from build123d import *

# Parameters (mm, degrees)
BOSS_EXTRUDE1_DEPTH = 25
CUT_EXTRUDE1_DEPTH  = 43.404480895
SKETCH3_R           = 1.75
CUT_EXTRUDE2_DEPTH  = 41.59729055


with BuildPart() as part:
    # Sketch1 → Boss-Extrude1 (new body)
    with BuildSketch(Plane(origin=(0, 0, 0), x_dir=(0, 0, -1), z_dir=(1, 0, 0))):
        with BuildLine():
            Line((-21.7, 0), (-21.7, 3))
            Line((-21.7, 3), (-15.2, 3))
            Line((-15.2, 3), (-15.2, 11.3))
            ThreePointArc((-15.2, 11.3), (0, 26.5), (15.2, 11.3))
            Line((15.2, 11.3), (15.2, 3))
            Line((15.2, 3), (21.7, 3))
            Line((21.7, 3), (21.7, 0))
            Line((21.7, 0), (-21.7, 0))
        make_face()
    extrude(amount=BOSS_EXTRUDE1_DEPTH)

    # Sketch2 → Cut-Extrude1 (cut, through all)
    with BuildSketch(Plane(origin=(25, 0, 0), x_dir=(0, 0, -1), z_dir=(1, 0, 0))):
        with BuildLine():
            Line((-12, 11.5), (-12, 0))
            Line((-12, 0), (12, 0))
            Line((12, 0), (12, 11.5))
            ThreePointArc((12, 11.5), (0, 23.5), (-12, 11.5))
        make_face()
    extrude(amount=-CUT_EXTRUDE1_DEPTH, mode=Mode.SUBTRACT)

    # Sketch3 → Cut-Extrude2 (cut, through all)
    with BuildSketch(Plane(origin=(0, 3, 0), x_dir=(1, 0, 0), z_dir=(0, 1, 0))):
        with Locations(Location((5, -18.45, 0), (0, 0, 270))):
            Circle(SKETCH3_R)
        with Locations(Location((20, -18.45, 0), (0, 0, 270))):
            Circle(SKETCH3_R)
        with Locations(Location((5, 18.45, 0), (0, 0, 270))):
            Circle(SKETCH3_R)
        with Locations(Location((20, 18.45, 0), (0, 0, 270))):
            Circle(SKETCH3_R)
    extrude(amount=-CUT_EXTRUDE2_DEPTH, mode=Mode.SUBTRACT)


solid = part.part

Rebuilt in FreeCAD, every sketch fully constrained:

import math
import FreeCAD as App
import Part
import Sketcher

doc = App.newDocument("Part")
body = doc.addObject("PartDesign::Body", "Body")

# Sketch on YZ plane
sketch1 = doc.addObject("Sketcher::SketchObject", "Sketch")
body.addObject(sketch1)
sketch1.AttachmentSupport = (doc.YZ_Plane, [""])
sketch1.MapMode = "FlatFace"
sketch1.addGeometry([
    Part.LineSegment(App.Vector(3, 21.7, 0), App.Vector(0, 21.7, 0)),  # 0
    Part.LineSegment(App.Vector(0, 21.7, 0), App.Vector(0, -21.7, 0)),  # 1
    Part.LineSegment(App.Vector(0, -21.7, 0), App.Vector(3, -21.7, 0)),  # 2
    Part.LineSegment(App.Vector(3, -21.7, 0), App.Vector(3, -15.2, 0)),  # 3
    Part.LineSegment(App.Vector(3, -15.2, 0), App.Vector(11.3, -15.2, 0)),  # 4
    Part.ArcOfCircle(Part.Circle(App.Vector(11.3, 0, 0), App.Vector(0, 0, 1), 15.2), math.radians(-90), math.radians(90)),  # 5
    Part.LineSegment(App.Vector(11.3, 15.2, 0), App.Vector(3, 15.2, 0)),  # 6
    Part.LineSegment(App.Vector(3, 15.2, 0), App.Vector(3, 21.7, 0)),  # 7
], False)
sketch1.addConstraint([
    Sketcher.Constraint("Coincident", 0, 2, 1, 1),
    Sketcher.Constraint("Coincident", 1, 2, 2, 1),
    Sketcher.Constraint("Coincident", 2, 2, 3, 1),
    Sketcher.Constraint("Coincident", 3, 2, 4, 1),
    Sketcher.Constraint("Tangent", 4, 2, 5, 1),
    Sketcher.Constraint("Tangent", 5, 2, 6, 1),
    Sketcher.Constraint("Coincident", 6, 2, 7, 1),
    Sketcher.Constraint("Coincident", 7, 2, 0, 1),
    Sketcher.Constraint("Horizontal", 0),
    Sketcher.Constraint("Vertical", 1),
    Sketcher.Constraint("Horizontal", 2),
    Sketcher.Constraint("Vertical", 3),
    Sketcher.Constraint("Horizontal", 4),
    Sketcher.Constraint("Horizontal", 6),
    Sketcher.Constraint("Vertical", 7),
    Sketcher.Constraint("Symmetric", 0, 2, 1, 2, -1, 1),
    Sketcher.Constraint("Symmetric", 3, 2, 6, 2, -1),
    Sketcher.Constraint("Radius", 5, 15.2),
    Sketcher.Constraint("DistanceX", 0, 2, 0, 1, 3.0),
    Sketcher.Constraint("DistanceX", 4, 1, 4, 2, 8.3),
    Sketcher.Constraint("DistanceY", 1, 2, 1, 1, 43.4),
])
pad1 = doc.addObject("PartDesign::Pad", "Pad")
body.addObject(pad1)
pad1.Profile = sketch1
pad1.Length = 25

# Sketch on YZ plane
sketch2 = doc.addObject("Sketcher::SketchObject", "Sketch001")
body.addObject(sketch2)
sketch2.AttachmentSupport = (doc.YZ_Plane, [""])
sketch2.MapMode = "FlatFace"
sketch2.AttachmentOffset = App.Placement(App.Vector(0, 0, 25), App.Rotation())
sketch2.addGeometry([
    Part.LineSegment(App.Vector(12, 12, 0), App.Vector(0, 12, 0)),
    Part.LineSegment(App.Vector(0, 12, 0), App.Vector(0, -12, 0)),
    Part.LineSegment(App.Vector(0, -12, 0), App.Vector(12, -12, 0)),
    Part.ArcOfCircle(Part.Circle(App.Vector(12, 0, 0), App.Vector(0, 0, 1), 12), math.radians(-90), math.radians(90)),
], False)
sketch2.addConstraint([
    Sketcher.Constraint("Coincident", 0, 2, 1, 1),
    Sketcher.Constraint("Coincident", 1, 2, 2, 1),
    Sketcher.Constraint("Tangent", 2, 2, 3, 1),
    Sketcher.Constraint("Tangent", 3, 2, 0, 1),
    Sketcher.Constraint("Horizontal", 0),
    Sketcher.Constraint("Vertical", 1),
    Sketcher.Constraint("Horizontal", 2),
    Sketcher.Constraint("Symmetric", 0, 2, 1, 2, -1, 1),
    Sketcher.Constraint("Radius", 3, 12.0),
    Sketcher.Constraint("DistanceX", 0, 2, 0, 1, 11.5),
])
pocket1 = doc.addObject("PartDesign::Pocket", "Pocket")
body.addObject(pocket1)
pocket1.Profile = sketch2
pocket1.Type = "ThroughAll"

# Sketch on XZ plane
sketch3 = doc.addObject("Sketcher::SketchObject", "Sketch002")
body.addObject(sketch3)
sketch3.AttachmentSupport = (doc.XZ_Plane, [""])
sketch3.MapMode = "FlatFace"
sketch3.AttachmentOffset = App.Placement(App.Vector(0, 0, -3), App.Rotation())
sketch3.addGeometry([
    Part.Circle(App.Vector(5, 18.4, 0), App.Vector(0, 0, 1), 1.8),
    Part.Circle(App.Vector(20, 18.4, 0), App.Vector(0, 0, 1), 1.8),
    Part.Circle(App.Vector(5, -18.4, 0), App.Vector(0, 0, 1), 1.8),
    Part.Circle(App.Vector(20, -18.4, 0), App.Vector(0, 0, 1), 1.8),
], False)
sketch3.addConstraint([
    Sketcher.Constraint("Equal", 0, 1),
    Sketcher.Constraint("Equal", 1, 2),
    Sketcher.Constraint("Equal", 2, 3),
    Sketcher.Constraint("Symmetric", 0, 3, 2, 3, -1),
    Sketcher.Constraint("Symmetric", 1, 3, 3, 3, -1),
    Sketcher.Constraint("Horizontal", 0, 3, 1, 3),
    Sketcher.Constraint("Diameter", 0, 3.5),
    Sketcher.Constraint("DistanceX", -1, 1, 0, 3, 5.0),
    Sketcher.Constraint("DistanceX", -1, 1, 1, 3, 20.0),
    Sketcher.Constraint("DistanceY", 2, 3, 0, 3, 36.9),
])
pocket2 = doc.addObject("PartDesign::Pocket", "Pocket001")
body.addObject(pocket2)
pocket2.Profile = sketch3
pocket2.Type = "ThroughAll"
pocket2.Reversed = True

doc.recompute()
